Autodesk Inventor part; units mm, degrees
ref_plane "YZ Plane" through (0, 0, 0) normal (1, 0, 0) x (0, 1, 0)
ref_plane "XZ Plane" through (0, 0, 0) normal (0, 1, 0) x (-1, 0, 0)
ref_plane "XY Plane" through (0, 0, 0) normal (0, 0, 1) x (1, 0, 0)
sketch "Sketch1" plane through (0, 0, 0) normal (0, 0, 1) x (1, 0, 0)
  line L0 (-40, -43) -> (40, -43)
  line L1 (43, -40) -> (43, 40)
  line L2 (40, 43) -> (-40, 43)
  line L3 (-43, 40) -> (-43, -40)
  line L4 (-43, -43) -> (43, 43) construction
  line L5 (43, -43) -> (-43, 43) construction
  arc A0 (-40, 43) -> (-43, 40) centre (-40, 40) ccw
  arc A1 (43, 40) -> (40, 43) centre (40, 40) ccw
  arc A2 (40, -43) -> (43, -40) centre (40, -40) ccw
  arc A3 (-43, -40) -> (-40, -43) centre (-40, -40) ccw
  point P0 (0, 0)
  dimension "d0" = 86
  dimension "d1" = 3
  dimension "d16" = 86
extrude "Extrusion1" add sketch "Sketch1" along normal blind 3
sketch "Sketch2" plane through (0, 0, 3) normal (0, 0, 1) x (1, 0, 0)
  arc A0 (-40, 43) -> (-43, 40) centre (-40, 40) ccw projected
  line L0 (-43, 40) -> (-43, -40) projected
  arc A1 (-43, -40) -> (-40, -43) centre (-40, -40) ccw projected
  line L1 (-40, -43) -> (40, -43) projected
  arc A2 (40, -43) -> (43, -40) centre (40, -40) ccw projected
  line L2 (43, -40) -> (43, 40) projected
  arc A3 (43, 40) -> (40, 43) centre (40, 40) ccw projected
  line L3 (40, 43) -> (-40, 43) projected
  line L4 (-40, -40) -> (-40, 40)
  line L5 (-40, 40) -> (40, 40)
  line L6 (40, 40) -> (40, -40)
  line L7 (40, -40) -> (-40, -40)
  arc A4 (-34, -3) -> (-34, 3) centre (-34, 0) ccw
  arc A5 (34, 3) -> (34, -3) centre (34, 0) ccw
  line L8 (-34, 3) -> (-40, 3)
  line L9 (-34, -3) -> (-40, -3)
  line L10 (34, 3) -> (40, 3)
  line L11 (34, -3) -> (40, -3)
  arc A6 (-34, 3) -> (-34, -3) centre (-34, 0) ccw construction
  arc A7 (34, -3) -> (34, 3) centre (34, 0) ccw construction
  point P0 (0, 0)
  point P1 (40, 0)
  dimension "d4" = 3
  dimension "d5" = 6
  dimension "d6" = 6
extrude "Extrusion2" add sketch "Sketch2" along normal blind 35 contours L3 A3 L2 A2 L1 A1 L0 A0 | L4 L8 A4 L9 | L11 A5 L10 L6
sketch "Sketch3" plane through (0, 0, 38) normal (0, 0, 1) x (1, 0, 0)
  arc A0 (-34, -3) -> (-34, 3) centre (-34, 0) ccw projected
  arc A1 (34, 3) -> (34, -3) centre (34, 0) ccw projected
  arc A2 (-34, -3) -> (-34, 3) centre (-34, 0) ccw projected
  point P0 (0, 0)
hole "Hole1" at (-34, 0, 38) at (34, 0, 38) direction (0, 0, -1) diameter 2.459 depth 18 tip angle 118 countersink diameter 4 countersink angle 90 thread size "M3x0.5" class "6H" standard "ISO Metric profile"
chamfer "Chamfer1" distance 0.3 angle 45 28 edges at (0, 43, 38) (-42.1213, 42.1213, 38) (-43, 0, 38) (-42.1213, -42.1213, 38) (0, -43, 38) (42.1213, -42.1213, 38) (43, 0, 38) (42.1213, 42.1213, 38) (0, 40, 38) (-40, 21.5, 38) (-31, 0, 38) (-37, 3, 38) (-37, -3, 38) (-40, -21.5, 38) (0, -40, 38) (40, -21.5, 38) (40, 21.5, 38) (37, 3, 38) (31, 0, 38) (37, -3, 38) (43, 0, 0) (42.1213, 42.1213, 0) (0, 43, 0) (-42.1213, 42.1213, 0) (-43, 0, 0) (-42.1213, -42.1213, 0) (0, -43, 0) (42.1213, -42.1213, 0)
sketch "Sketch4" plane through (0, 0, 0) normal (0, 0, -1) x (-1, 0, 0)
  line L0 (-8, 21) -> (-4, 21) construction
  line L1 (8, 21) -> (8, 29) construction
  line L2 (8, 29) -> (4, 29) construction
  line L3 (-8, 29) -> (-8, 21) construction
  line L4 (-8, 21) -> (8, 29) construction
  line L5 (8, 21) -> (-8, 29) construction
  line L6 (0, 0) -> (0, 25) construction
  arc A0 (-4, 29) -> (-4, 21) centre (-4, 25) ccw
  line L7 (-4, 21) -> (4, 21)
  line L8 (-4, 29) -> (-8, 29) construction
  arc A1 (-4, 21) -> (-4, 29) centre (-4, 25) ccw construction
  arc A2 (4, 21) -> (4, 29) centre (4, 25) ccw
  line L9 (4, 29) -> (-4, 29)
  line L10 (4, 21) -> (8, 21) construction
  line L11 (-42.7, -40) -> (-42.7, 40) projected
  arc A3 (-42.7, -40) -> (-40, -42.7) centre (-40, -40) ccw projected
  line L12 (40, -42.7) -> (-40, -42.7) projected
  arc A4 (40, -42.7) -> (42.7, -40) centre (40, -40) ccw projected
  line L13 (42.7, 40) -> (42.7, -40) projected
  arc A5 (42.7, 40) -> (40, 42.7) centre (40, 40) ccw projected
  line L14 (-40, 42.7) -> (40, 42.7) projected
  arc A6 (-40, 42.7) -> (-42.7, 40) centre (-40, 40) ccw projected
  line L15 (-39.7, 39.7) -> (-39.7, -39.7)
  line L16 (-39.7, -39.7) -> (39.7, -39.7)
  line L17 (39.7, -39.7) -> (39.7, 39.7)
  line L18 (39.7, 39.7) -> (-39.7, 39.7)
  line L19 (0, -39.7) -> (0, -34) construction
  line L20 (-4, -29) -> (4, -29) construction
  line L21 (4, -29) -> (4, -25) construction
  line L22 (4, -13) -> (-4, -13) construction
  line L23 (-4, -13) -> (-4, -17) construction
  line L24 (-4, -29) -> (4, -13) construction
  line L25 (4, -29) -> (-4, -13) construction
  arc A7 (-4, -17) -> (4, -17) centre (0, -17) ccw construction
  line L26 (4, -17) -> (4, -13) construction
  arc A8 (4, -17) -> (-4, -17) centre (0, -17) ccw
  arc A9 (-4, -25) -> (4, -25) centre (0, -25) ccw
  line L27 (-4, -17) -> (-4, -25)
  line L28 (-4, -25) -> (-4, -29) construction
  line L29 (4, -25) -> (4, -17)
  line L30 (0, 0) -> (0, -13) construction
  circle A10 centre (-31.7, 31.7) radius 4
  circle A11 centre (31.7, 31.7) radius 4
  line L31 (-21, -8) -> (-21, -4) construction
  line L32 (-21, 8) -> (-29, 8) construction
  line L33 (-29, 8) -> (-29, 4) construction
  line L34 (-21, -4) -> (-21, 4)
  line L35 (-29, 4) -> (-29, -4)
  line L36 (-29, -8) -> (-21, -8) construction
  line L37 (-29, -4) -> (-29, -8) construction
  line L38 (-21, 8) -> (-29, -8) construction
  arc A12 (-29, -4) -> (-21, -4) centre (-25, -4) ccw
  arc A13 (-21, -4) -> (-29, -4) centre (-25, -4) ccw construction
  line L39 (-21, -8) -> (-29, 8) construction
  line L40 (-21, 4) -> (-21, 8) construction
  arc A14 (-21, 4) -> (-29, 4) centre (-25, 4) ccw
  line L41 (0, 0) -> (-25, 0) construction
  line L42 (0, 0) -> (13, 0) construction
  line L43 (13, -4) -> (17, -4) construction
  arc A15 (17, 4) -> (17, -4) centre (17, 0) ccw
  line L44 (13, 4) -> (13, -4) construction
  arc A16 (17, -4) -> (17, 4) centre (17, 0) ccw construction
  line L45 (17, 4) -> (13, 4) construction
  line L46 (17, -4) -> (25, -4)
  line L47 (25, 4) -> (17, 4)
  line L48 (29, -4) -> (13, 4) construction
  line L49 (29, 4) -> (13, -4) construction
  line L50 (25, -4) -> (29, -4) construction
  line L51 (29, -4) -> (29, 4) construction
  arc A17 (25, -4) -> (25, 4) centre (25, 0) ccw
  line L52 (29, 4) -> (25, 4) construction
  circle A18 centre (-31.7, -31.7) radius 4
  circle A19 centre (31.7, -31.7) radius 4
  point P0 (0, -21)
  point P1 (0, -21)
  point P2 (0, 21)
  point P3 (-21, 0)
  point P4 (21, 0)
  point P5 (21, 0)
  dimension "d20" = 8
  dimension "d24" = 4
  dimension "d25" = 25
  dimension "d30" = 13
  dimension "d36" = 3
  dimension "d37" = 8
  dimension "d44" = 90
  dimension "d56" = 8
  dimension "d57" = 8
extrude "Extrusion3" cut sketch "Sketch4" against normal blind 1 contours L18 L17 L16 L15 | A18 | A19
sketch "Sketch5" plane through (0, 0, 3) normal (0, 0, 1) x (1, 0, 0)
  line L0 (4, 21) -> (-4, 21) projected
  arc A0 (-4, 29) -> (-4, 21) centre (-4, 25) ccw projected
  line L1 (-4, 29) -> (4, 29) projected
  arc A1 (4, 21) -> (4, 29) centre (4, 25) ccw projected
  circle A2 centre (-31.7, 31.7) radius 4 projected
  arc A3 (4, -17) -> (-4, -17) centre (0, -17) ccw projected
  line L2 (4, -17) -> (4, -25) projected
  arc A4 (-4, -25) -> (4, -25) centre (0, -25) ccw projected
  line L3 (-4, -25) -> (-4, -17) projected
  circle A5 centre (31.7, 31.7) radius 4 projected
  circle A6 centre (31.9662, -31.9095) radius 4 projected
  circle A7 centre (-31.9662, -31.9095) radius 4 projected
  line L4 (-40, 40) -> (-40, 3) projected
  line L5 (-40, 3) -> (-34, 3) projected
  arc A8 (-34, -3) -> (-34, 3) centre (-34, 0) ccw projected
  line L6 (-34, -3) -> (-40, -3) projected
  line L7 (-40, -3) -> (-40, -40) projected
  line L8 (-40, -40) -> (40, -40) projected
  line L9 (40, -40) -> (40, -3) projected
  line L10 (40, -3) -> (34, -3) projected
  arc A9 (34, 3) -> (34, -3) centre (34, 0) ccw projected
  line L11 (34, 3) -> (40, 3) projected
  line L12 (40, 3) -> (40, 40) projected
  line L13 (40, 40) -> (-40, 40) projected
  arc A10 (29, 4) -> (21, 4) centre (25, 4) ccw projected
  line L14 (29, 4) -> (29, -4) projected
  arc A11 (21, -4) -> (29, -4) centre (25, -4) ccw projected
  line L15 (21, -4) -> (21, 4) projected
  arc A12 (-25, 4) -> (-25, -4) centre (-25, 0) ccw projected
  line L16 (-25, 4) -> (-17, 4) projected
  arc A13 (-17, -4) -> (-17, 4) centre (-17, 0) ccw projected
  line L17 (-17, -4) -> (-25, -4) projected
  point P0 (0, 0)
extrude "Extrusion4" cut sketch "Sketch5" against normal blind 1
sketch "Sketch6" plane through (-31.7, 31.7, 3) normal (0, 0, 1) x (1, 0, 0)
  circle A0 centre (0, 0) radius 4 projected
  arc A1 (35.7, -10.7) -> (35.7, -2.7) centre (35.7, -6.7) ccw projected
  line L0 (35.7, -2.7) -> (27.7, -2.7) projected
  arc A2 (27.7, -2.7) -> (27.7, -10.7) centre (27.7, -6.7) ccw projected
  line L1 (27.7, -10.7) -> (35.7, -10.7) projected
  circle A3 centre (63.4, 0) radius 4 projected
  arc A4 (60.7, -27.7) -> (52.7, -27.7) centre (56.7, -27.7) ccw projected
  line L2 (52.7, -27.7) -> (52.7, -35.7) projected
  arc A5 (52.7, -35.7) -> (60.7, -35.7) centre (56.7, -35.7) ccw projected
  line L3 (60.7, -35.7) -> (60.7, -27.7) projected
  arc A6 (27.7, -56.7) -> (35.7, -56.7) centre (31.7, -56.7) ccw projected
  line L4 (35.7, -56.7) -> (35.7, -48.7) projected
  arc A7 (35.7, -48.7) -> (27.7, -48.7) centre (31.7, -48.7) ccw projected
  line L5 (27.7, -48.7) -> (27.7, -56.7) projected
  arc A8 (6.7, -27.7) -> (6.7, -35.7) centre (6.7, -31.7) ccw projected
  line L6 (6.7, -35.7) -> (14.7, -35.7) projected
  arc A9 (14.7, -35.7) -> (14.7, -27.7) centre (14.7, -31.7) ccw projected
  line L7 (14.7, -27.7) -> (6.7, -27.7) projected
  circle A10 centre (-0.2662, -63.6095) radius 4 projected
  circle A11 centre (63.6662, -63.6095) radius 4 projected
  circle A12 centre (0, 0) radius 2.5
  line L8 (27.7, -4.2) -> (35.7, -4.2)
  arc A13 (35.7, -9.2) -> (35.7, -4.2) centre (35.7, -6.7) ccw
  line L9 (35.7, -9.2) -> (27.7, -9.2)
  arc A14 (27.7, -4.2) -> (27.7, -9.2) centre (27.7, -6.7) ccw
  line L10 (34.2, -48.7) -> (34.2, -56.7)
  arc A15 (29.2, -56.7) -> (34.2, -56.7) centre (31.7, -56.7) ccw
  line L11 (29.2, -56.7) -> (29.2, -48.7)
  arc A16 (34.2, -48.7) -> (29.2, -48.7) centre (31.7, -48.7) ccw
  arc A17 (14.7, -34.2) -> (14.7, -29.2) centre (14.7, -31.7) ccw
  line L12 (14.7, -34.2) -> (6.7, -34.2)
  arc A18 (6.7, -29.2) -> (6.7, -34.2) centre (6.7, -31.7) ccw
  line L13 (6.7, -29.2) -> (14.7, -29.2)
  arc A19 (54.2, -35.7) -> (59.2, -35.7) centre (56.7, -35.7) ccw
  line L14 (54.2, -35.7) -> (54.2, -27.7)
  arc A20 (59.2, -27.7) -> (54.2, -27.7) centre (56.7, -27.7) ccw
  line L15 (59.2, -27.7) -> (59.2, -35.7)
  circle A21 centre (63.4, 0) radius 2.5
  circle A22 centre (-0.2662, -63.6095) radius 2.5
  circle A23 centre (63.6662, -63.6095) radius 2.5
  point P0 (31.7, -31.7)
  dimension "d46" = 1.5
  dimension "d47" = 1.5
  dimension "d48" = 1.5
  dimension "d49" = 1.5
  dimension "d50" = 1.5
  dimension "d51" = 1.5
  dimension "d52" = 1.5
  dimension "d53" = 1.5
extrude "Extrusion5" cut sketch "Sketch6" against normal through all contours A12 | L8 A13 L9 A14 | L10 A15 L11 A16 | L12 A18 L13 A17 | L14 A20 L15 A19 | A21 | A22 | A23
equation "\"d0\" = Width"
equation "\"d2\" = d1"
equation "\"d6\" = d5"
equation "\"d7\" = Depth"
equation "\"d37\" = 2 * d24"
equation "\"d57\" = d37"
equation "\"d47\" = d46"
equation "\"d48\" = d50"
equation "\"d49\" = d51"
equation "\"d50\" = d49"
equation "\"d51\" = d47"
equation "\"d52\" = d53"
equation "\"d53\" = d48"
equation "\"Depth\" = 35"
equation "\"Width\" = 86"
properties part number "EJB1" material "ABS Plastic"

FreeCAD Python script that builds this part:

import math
import FreeCAD as App
import Part
import Sketcher

V = App.Vector


def edges_at(feature, points):
    """Names of the edges that pass closest to the given points."""
    edges = feature.Shape.Edges
    near = lambda p: min(range(len(edges)), key=lambda i: edges[i].distToShape(Part.Vertex(*p))[0])
    return sorted({f"Edge{near(p) + 1}" for p in points})


def add_polygon(sketch, points):
    """Adds a closed chain of lines whose ends are joined by coincident constraints."""
    first, n = sketch.GeometryCount, len(points)
    for a, b in zip(points, points[1:] + points[:1]):
        sketch.addGeometry(Part.LineSegment(App.Vector(*a, 0), App.Vector(*b, 0)), False)
    for i in range(n):
        sketch.addConstraint(Sketcher.Constraint("Coincident", first + i, 2, first + (i + 1) % n, 1))

doc = App.newDocument("Part")
body = doc.addObject("PartDesign::Body", "Body")

# Sketch on XY plane
sketch1 = doc.addObject("Sketcher::SketchObject", "Sketch")
body.addObject(sketch1)
sketch1.AttachmentSupport = (doc.XY_Plane, [""])
sketch1.MapMode = "FlatFace"
sketch1.addGeometry([
    Part.ArcOfCircle(Part.Circle(V(-40, -40, 0), V(0, 0, 1), 3), math.radians(180), math.radians(270)),  # 0
    Part.LineSegment(V(-40, -43, 0), V(40, -43, 0)),  # 1
    Part.ArcOfCircle(Part.Circle(V(40, -40, 0), V(0, 0, 1), 3), math.radians(-90), math.radians(0)),  # 2
    Part.LineSegment(V(43, -40, 0), V(43, 40, 0)),  # 3
    Part.ArcOfCircle(Part.Circle(V(40, 40, 0), V(0, 0, 1), 3), math.radians(0), math.radians(90)),  # 4
    Part.LineSegment(V(40, 43, 0), V(-40, 43, 0)),  # 5
    Part.ArcOfCircle(Part.Circle(V(-40, 40, 0), V(0, 0, 1), 3), math.radians(90), math.radians(180)),  # 6
    Part.LineSegment(V(-43, 40, 0), V(-43, -40, 0)),  # 7
], False)
sketch1.addConstraint([
    Sketcher.Constraint("Tangent", 0, 2, 1, 1),
    Sketcher.Constraint("Tangent", 1, 2, 2, 1),
    Sketcher.Constraint("Tangent", 2, 2, 3, 1),
    Sketcher.Constraint("Tangent", 3, 2, 4, 1),
    Sketcher.Constraint("Tangent", 4, 2, 5, 1),
    Sketcher.Constraint("Tangent", 5, 2, 6, 1),
    Sketcher.Constraint("Tangent", 6, 2, 7, 1),
    Sketcher.Constraint("Tangent", 7, 2, 0, 1),
    Sketcher.Constraint("Horizontal", 1),
    Sketcher.Constraint("Vertical", 3),
    Sketcher.Constraint("Horizontal", 5),
    Sketcher.Constraint("Vertical", 7),
    Sketcher.Constraint("Equal", 0, 2),
    Sketcher.Constraint("Equal", 2, 4),
    Sketcher.Constraint("Equal", 4, 6),
    Sketcher.Constraint("Symmetric", 0, 3, 4, 3, -1, 1),
    Sketcher.Constraint("Equal", 5, 3),
    Sketcher.Constraint("Radius", 0, 3.0),
    Sketcher.Constraint("DistanceX", 1, 1, 1, 2, 80.0),
])
pad1 = doc.addObject("PartDesign::Pad", "Pad")
body.addObject(pad1)
pad1.Profile = sketch1
pad1.Length = 3

# Sketch on XY plane
sketch2 = doc.addObject("Sketcher::SketchObject", "Sketch001")
body.addObject(sketch2)
sketch2.AttachmentSupport = (doc.XY_Plane, [""])
sketch2.MapMode = "FlatFace"
sketch2.AttachmentOffset = App.Placement(V(0, 0, 3), App.Rotation())
sketch2.addGeometry([
    Part.LineSegment(V(40, 43, 0), V(-40, 43, 0)),  # 0
    Part.ArcOfCircle(Part.Circle(V(-40, 40, 0), V(0, 0, 1), 3), math.radians(90), math.radians(180)),  # 1
    Part.LineSegment(V(-43, 40, 0), V(-43, -40, 0)),  # 2
    Part.ArcOfCircle(Part.Circle(V(-40, -40, 0), V(0, 0, 1), 3), math.radians(180), math.radians(270)),  # 3
    Part.LineSegment(V(-40, -43, 0), V(40, -43, 0)),  # 4
    Part.ArcOfCircle(Part.Circle(V(40, -40, 0), V(0, 0, 1), 3), math.radians(-90), math.radians(0)),  # 5
    Part.LineSegment(V(43, -40, 0), V(43, 40, 0)),  # 6
    Part.ArcOfCircle(Part.Circle(V(40, 40, 0), V(0, 0, 1), 3), math.radians(0), math.radians(90)),  # 7
    Part.LineSegment(V(40, -40, 0), V(-40, -40, 0)),  # 8
    Part.LineSegment(V(-40, -40, 0), V(-40, -3, 0)),  # 9
    Part.LineSegment(V(-40, -3, 0), V(-34, -3, 0)),  # 10
    Part.ArcOfCircle(Part.Circle(V(-34, 0, 0), V(0, 0, 1), 3), math.radians(-90), math.radians(90)),  # 11
    Part.LineSegment(V(-34, 3, 0), V(-40, 3, 0)),  # 12
    Part.LineSegment(V(-40, 3, 0), V(-40, 40, 0)),  # 13
    Part.LineSegment(V(-40, 40, 0), V(40, 40, 0)),  # 14
    Part.LineSegment(V(40, 40, 0), V(40, 3, 0)),  # 15
    Part.LineSegment(V(40, 3, 0), V(34, 3, 0)),  # 16
    Part.ArcOfCircle(Part.Circle(V(34, 0, 0), V(0, 0, 1), 3), math.radians(90), math.radians(270)),  # 17
    Part.LineSegment(V(34, -3, 0), V(40, -3, 0)),  # 18
    Part.LineSegment(V(40, -3, 0), V(40, -40, 0)),  # 19
], False)
sketch2.addConstraint([
    Sketcher.Constraint("Tangent", 0, 2, 1, 1),
    Sketcher.Constraint("Tangent", 1, 2, 2, 1),
    Sketcher.Constraint("Tangent", 2, 2, 3, 1),
    Sketcher.Constraint("Tangent", 3, 2, 4, 1),
    Sketcher.Constraint("Tangent", 4, 2, 5, 1),
    Sketcher.Constraint("Tangent", 5, 2, 6, 1),
    Sketcher.Constraint("Tangent", 6, 2, 7, 1),
    Sketcher.Constraint("Tangent", 7, 2, 0, 1),
    Sketcher.Constraint("Coincident", 8, 2, 9, 1),
    Sketcher.Constraint("Coincident", 9, 2, 10, 1),
    Sketcher.Constraint("Tangent", 10, 2, 11, 1),
    Sketcher.Constraint("Tangent", 11, 2, 12, 1),
    Sketcher.Constraint("Coincident", 12, 2, 13, 1),
    Sketcher.Constraint("Coincident", 13, 2, 14, 1),
    Sketcher.Constraint("Coincident", 14, 2, 15, 1),
    Sketcher.Constraint("Coincident", 15, 2, 16, 1),
    Sketcher.Constraint("Tangent", 16, 2, 17, 1),
    Sketcher.Constraint("Tangent", 17, 2, 18, 1),
    Sketcher.Constraint("Coincident", 18, 2, 19, 1),
    Sketcher.Constraint("Coincident", 19, 2, 8, 1),
    Sketcher.Constraint("Horizontal", 0),
    Sketcher.Constraint("Vertical", 2),
    Sketcher.Constraint("Horizontal", 4),
    Sketcher.Constraint("Vertical", 6),
    Sketcher.Constraint("Horizontal", 8),
    Sketcher.Constraint("Vertical", 9),
    Sketcher.Constraint("Horizontal", 10),
    Sketcher.Constraint("Horizontal", 12),
    Sketcher.Constraint("Vertical", 13),
    Sketcher.Constraint("Horizontal", 14),
    Sketcher.Constraint("Vertical", 15),
    Sketcher.Constraint("Horizontal", 16),
    Sketcher.Constraint("Horizontal", 18),
    Sketcher.Constraint("Vertical", 19),
    Sketcher.Constraint("Coincident", 8, 2, 3, 3),
    Sketcher.Constraint("Coincident", 13, 2, 1, 3),
    Sketcher.Constraint("Coincident", 14, 2, 7, 3),
    Sketcher.Constraint("Coincident", 19, 2, 5, 3),
    Sketcher.Constraint("Equal", 1, 3),
    Sketcher.Constraint("Equal", 7, 11),
    Sketcher.Constraint("Equal", 11, 17),
    Sketcher.Constraint("Symmetric", 1, 3, 5, 3, -1, 1),
    Sketcher.Constraint("Symmetric", 11, 3, 17, 3, -1, 1),
    Sketcher.Constraint("PointOnObject", 11, 3, -1),
    Sketcher.Constraint("Equal", 14, 2),
    Sketcher.Constraint("Radius", 1, 3.0),
    Sketcher.Constraint("DistanceX", 10, 1, 10, 2, 6.0),
    Sketcher.Constraint("DistanceX", 0, 2, 0, 1, 80.0),
])
pad2 = doc.addObject("PartDesign::Pad", "Pad001")
body.addObject(pad2)
pad2.Profile = sketch2
pad2.Length = 35

# Sketch on XY plane
sketch3 = doc.addObject("Sketcher::SketchObject", "Sketch002")
body.addObject(sketch3)
sketch3.AttachmentSupport = (doc.XY_Plane, [""])
sketch3.MapMode = "FlatFace"
sketch3.AttachmentOffset = App.Placement(V(0, 0, 38), App.Rotation())
sketch3.addGeometry([
    Part.Circle(V(-34, 0, 0), V(0, 0, 1), 1.2295),
    Part.Circle(V(34, 0, 0), V(0, 0, 1), 1.2295),
], False)
sketch3.addConstraint([
    Sketcher.Constraint("Equal", 0, 1),
    Sketcher.Constraint("Symmetric", 0, 3, 1, 3, -1, 1),
    Sketcher.Constraint("PointOnObject", 0, 3, -1),
    Sketcher.Constraint("Diameter", 0, 2.459),
    Sketcher.Constraint("DistanceX", 0, 3, -1, 1, 34.0),
])
doc.recompute()
hole = doc.addObject("PartDesign::Hole", "Hole")
body.addObject(hole)
hole.Profile = sketch3
hole.ThreadType = "None"
hole.Diameter = 2.459
hole.DepthType = "Dimension"
hole.Depth = 18
hole.DrillPoint = "Angled"
hole.DrillPointAngle = 118
hole.HoleCutType = "Countersink"
hole.HoleCutDiameter = 4
hole.HoleCutCountersinkAngle = 90
doc.recompute()

chamfer = doc.addObject("PartDesign::Chamfer", "Chamfer")
body.addObject(chamfer)
chamfer.Base = (hole, edges_at(hole, [
    (0, 43, 38),
    (-42.121, 42.121, 38),
    (-43, 0, 38),
    (-42.121, -42.121, 38),
    (0, -43, 38),
    (42.121, -42.121, 38),
    (43, 0, 38),
    (42.121, 42.121, 38),
    (0, 40, 38),
    (-40, 21.5, 38),
    (-31, 0, 38),
    (-37, 3, 38),
    (-37, -3, 38),
    (-40, -21.5, 38),
    (0, -40, 38),
    (40, -21.5, 38),
    (40, 21.5, 38),
    (37, 3, 38),
    (31, 0, 38),
    (37, -3, 38),
    (43, 0, 0),
    (42.121, 42.121, 0),
    (0, 43, 0),
    (-42.121, 42.121, 0),
    (-43, 0, 0),
    (-42.121, -42.121, 0),
    (0, -43, 0),
    (42.121, -42.121, 0),
]))
chamfer.Size = 0.3

# Sketch on XY plane
sketch4 = doc.addObject("Sketcher::SketchObject", "Sketch003")
body.addObject(sketch4)
sketch4.AttachmentSupport = (doc.XY_Plane, [""])
sketch4.MapMode = "FlatFace"
add_polygon(sketch4, [(-39.7, 39.7), (39.7, 39.7), (39.7, -39.7), (-39.7, -39.7)])  # lines 0-3
sketch4.addGeometry(Part.ArcOfCircle(Part.Circle(V(0, -17, 0), V(0, 0, 1), 4), math.radians(0), math.radians(180)), False)  # 4
sketch4.addGeometry(Part.LineSegment(V(-4, -17, 0), V(-4, -25, 0)), False)  # 5
sketch4.addGeometry(Part.ArcOfCircle(Part.Circle(V(0, -25, 0), V(0, 0, 1), 4), math.radians(180), math.radians(360)), False)  # 6
sketch4.addGeometry(Part.LineSegment(V(4, -25, 0), V(4, -17, 0)), False)  # 7
sketch4.addGeometry(Part.LineSegment(V(21, 4, 0), V(21, -4, 0)), False)  # 8
sketch4.addGeometry(Part.ArcOfCircle(Part.Circle(V(25, -4, 0), V(0, 0, 1), 4), math.radians(180), math.radians(360)), False)  # 9
sketch4.addGeometry(Part.LineSegment(V(29, -4, 0), V(29, 4, 0)), False)  # 10
sketch4.addGeometry(Part.ArcOfCircle(Part.Circle(V(25, 4, 0), V(0, 0, 1), 4), math.radians(0), math.radians(180)), False)  # 11
sketch4.addGeometry(Part.Circle(V(31.7, 31.7, 0), V(0, 0, 1), 4), False)  # 12
sketch4.addGeometry(Part.ArcOfCircle(Part.Circle(V(-17, 0, 0), V(0, 0, 1), 4), math.radians(-90), math.radians(90)), False)  # 13
sketch4.addGeometry(Part.LineSegment(V(-17, 4, 0), V(-25, 4, 0)), False)  # 14
sketch4.addGeometry(Part.ArcOfCircle(Part.Circle(V(-25, 0, 0), V(0, 0, 1), 4), math.radians(90), math.radians(270)), False)  # 15
sketch4.addGeometry(Part.LineSegment(V(-25, -4, 0), V(-17, -4, 0)), False)  # 16
sketch4.addGeometry(Part.ArcOfCircle(Part.Circle(V(4, 25, 0), V(0, 0, 1), 4), math.radians(-90), math.radians(90)), False)  # 17
sketch4.addGeometry(Part.LineSegment(V(4, 29, 0), V(-4, 29, 0)), False)  # 18
sketch4.addGeometry(Part.ArcOfCircle(Part.Circle(V(-4, 25, 0), V(0, 0, 1), 4), math.radians(90), math.radians(270)), False)  # 19
sketch4.addGeometry(Part.LineSegment(V(-4, 21, 0), V(4, 21, 0)), False)  # 20
sketch4.addGeometry(Part.Circle(V(-31.7, 31.7, 0), V(0, 0, 1), 4), False)  # 21
sketch4.addConstraint([
    Sketcher.Constraint("Tangent", 4, 2, 5, 1),
    Sketcher.Constraint("Tangent", 5, 2, 6, 1),
    Sketcher.Constraint("Tangent", 6, 2, 7, 1),
    Sketcher.Constraint("Tangent", 7, 2, 4, 1),
    Sketcher.Constraint("Tangent", 8, 2, 9, 1),
    Sketcher.Constraint("Tangent", 9, 2, 10, 1),
    Sketcher.Constraint("Tangent", 10, 2, 11, 1),
    Sketcher.Constraint("Tangent", 11, 2, 8, 1),
    Sketcher.Constraint("Tangent", 13, 2, 14, 1),
    Sketcher.Constraint("Tangent", 14, 2, 15, 1),
    Sketcher.Constraint("Tangent", 15, 2, 16, 1),
    Sketcher.Constraint("Tangent", 16, 2, 13, 1),
    Sketcher.Constraint("Tangent", 17, 2, 18, 1),
    Sketcher.Constraint("Tangent", 18, 2, 19, 1),
    Sketcher.Constraint("Tangent", 19, 2, 20, 1),
    Sketcher.Constraint("Tangent", 20, 2, 17, 1),
    Sketcher.Constraint("Horizontal", 0),
    Sketcher.Constraint("Vertical", 1),
    Sketcher.Constraint("Horizontal", 2),
    Sketcher.Constraint("Vertical", 3),
    Sketcher.Constraint("Vertical", 5),
    Sketcher.Constraint("Vertical", 7),
    Sketcher.Constraint("Vertical", 8),
    Sketcher.Constraint("Vertical", 10),
    Sketcher.Constraint("Horizontal", 14),
    Sketcher.Constraint("Horizontal", 16),
    Sketcher.Constraint("Horizontal", 18),
    Sketcher.Constraint("Horizontal", 20),
    Sketcher.Constraint("Equal", 6, 9),
    Sketcher.Constraint("Equal", 11, 12),
    Sketcher.Constraint("Equal", 12, 13),
    Sketcher.Constraint("Equal", 15, 17),
    Sketcher.Constraint("Equal", 19, 21),
    Sketcher.Constraint("Symmetric", 0, 2, 2, 2, -1, 1),
    Sketcher.Constraint("Symmetric", 12, 3, 21, 3, -2),
    Sketcher.Constraint("PointOnObject", 4, 3, -2),
    Sketcher.Constraint("PointOnObject", 13, 3, -1),
    Sketcher.Constraint("Horizontal", 11, 2, 13, 2),
    Sketcher.Constraint("Horizontal", 9, 2, 15, 2),
    Sketcher.Constraint("Vertical", 19, 3, 4, 2),
    Sketcher.Constraint("Vertical", 17, 3, 6, 2),
    Sketcher.Constraint("Equal", 16, 18),
    Sketcher.Constraint("Equal", 2, 1),
    Sketcher.Constraint("Equal", 20, 5),
    Sketcher.Constraint("Diameter", 12, 8.0),
    Sketcher.Constraint("DistanceY", 6, 3, -1, 1, 25.0),
    Sketcher.Constraint("DistanceX", -1, 1, 9, 3, 25.0),
    Sketcher.Constraint("DistanceX", 15, 3, -1, 1, 25.0),
    Sketcher.Constraint("DistanceY", -1, 1, 17, 3, 25.0),
    Sketcher.Constraint("DistanceX", 12, 3, 0, 2, 8.0),
    Sketcher.Constraint("DistanceY", 12, 3, 0, 2, 8.0),
    Sketcher.Constraint("DistanceX", 0, 1, 0, 2, 79.4),
])
pocket1 = doc.addObject("PartDesign::Pocket", "Pocket")
body.addObject(pocket1)
pocket1.Profile = sketch4
pocket1.Length = 1
pocket1.Reversed = True

# Sketch on XY plane
sketch5 = doc.addObject("Sketcher::SketchObject", "Sketch004")
body.addObject(sketch5)
sketch5.AttachmentSupport = (doc.XY_Plane, [""])
sketch5.MapMode = "FlatFace"
sketch5.AttachmentOffset = App.Placement(V(0, 0, 3), App.Rotation())
sketch5.addGeometry([
    Part.LineSegment(V(40, 40, 0), V(-40, 40, 0)),  # 0
    Part.LineSegment(V(-40, 40, 0), V(-40, 3, 0)),  # 1
    Part.LineSegment(V(-40, 3, 0), V(-34, 3, 0)),  # 2
    Part.ArcOfCircle(Part.Circle(V(-34, 0, 0), V(0, 0, 1), 3), math.radians(-90), math.radians(90)),  # 3
    Part.LineSegment(V(-34, -3, 0), V(-40, -3, 0)),  # 4
    Part.LineSegment(V(-40, -3, 0), V(-40, -40, 0)),  # 5
    Part.LineSegment(V(-40, -40, 0), V(40, -40, 0)),  # 6
    Part.LineSegment(V(40, -40, 0), V(40, -3, 0)),  # 7
    Part.LineSegment(V(40, -3, 0), V(34, -3, 0)),  # 8
    Part.ArcOfCircle(Part.Circle(V(34, 0, 0), V(0, 0, 1), 3), math.radians(90), math.radians(270)),  # 9
    Part.LineSegment(V(34, 3, 0), V(40, 3, 0)),  # 10
    Part.LineSegment(V(40, 3, 0), V(40, 40, 0)),  # 11
    Part.Circle(V(-31.9662, -31.9095, 0), V(0, 0, 1), 4),  # 12
    Part.ArcOfCircle(Part.Circle(V(0, -17, 0), V(0, 0, 1), 4), math.radians(0), math.radians(180)),  # 13
    Part.LineSegment(V(4, -17, 0), V(4, -25, 0)),  # 14
    Part.ArcOfCircle(Part.Circle(V(0, -25, 0), V(0, 0, 1), 4), math.radians(180), math.radians(360)),  # 15
    Part.LineSegment(V(-4, -25, 0), V(-4, -17, 0)),  # 16
    Part.Circle(V(31.9662, -31.9095, 0), V(0, 0, 1), 4),  # 17
    Part.ArcOfCircle(Part.Circle(V(-25, 0, 0), V(0, 0, 1), 4), math.radians(90), math.radians(270)),  # 18
    Part.LineSegment(V(-25, 4, 0), V(-17, 4, 0)),  # 19
    Part.ArcOfCircle(Part.Circle(V(-17, 0, 0), V(0, 0, 1), 4), math.radians(-90), math.radians(90)),  # 20
    Part.LineSegment(V(-17, -4, 0), V(-25, -4, 0)),  # 21
    Part.Circle(V(-31.7, 31.7, 0), V(0, 0, 1), 4),  # 22
    Part.ArcOfCircle(Part.Circle(V(25, 4, 0), V(0, 0, 1), 4), math.radians(0), math.radians(180)),  # 23
    Part.LineSegment(V(29, 4, 0), V(29, -4, 0)),  # 24
    Part.ArcOfCircle(Part.Circle(V(25, -4, 0), V(0, 0, 1), 4), math.radians(180), math.radians(360)),  # 25
    Part.LineSegment(V(21, -4, 0), V(21, 4, 0)),  # 26
    Part.ArcOfCircle(Part.Circle(V(4, 25, 0), V(0, 0, 1), 4), math.radians(-90), math.radians(90)),  # 27
    Part.LineSegment(V(4, 21, 0), V(-4, 21, 0)),  # 28
    Part.ArcOfCircle(Part.Circle(V(-4, 25, 0), V(0, 0, 1), 4), math.radians(90), math.radians(270)),  # 29
    Part.LineSegment(V(-4, 29, 0), V(4, 29, 0)),  # 30
    Part.Circle(V(31.7, 31.7, 0), V(0, 0, 1), 4),  # 31
], False)
sketch5.addConstraint([
    Sketcher.Constraint("Coincident", 0, 2, 1, 1),
    Sketcher.Constraint("Coincident", 1, 2, 2, 1),
    Sketcher.Constraint("Tangent", 2, 2, 3, 2),
    Sketcher.Constraint("Tangent", 3, 1, 4, 1),
    Sketcher.Constraint("Coincident", 4, 2, 5, 1),
    Sketcher.Constraint("Coincident", 5, 2, 6, 1),
    Sketcher.Constraint("Coincident", 6, 2, 7, 1),
    Sketcher.Constraint("Coincident", 7, 2, 8, 1),
    Sketcher.Constraint("Tangent", 8, 2, 9, 2),
    Sketcher.Constraint("Tangent", 9, 1, 10, 1),
    Sketcher.Constraint("Coincident", 10, 2, 11, 1),
    Sketcher.Constraint("Coincident", 11, 2, 0, 1),
    Sketcher.Constraint("Tangent", 13, 1, 14, 1),
    Sketcher.Constraint("Tangent", 14, 2, 15, 2),
    Sketcher.Constraint("Tangent", 15, 1, 16, 1),
    Sketcher.Constraint("Tangent", 16, 2, 13, 2),
    Sketcher.Constraint("Tangent", 18, 1, 19, 1),
    Sketcher.Constraint("Tangent", 19, 2, 20, 2),
    Sketcher.Constraint("Tangent", 20, 1, 21, 1),
    Sketcher.Constraint("Tangent", 21, 2, 18, 2),
    Sketcher.Constraint("Tangent", 23, 1, 24, 1),
    Sketcher.Constraint("Tangent", 24, 2, 25, 2),
    Sketcher.Constraint("Tangent", 25, 1, 26, 1),
    Sketcher.Constraint("Tangent", 26, 2, 23, 2),
    Sketcher.Constraint("Tangent", 27, 1, 28, 1),
    Sketcher.Constraint("Tangent", 28, 2, 29, 2),
    Sketcher.Constraint("Tangent", 29, 1, 30, 1),
    Sketcher.Constraint("Tangent", 30, 2, 27, 2),
    Sketcher.Constraint("Horizontal", 0),
    Sketcher.Constraint("Vertical", 1),
    Sketcher.Constraint("Horizontal", 2),
    Sketcher.Constraint("Horizontal", 4),
    Sketcher.Constraint("Vertical", 5),
    Sketcher.Constraint("Horizontal", 6),
    Sketcher.Constraint("Vertical", 7),
    Sketcher.Constraint("Horizontal", 8),
    Sketcher.Constraint("Horizontal", 10),
    Sketcher.Constraint("Vertical", 11),
    Sketcher.Constraint("Vertical", 14),
    Sketcher.Constraint("Vertical", 16),
    Sketcher.Constraint("Horizontal", 19),
    Sketcher.Constraint("Horizontal", 21),
    Sketcher.Constraint("Vertical", 24),
    Sketcher.Constraint("Vertical", 26),
    Sketcher.Constraint("Horizontal", 28),
    Sketcher.Constraint("Horizontal", 30),
    Sketcher.Constraint("Equal", 3, 9),
    Sketcher.Constraint("Equal", 12, 13),
    Sketcher.Constraint("Equal", 15, 17),
    Sketcher.Constraint("Equal", 17, 18),
    Sketcher.Constraint("Equal", 20, 22),
    Sketcher.Constraint("Equal", 22, 23),
    Sketcher.Constraint("Equal", 25, 27),
    Sketcher.Constraint("Equal", 29, 31),
    Sketcher.Constraint("Symmetric", 3, 3, 9, 3, -1, 1),
    Sketcher.Constraint("Symmetric", 0, 2, 6, 2, -1, 1),
    Sketcher.Constraint("Symmetric", 12, 3, 17, 3, -2),
    Sketcher.Constraint("Symmetric", 22, 3, 31, 3, -2),
    Sketcher.Constraint("Symmetric", 4, 2, 7, 2, -2),
    Sketcher.Constraint("PointOnObject", 13, 3, -2),
    Sketcher.Constraint("PointOnObject", 18, 3, -1),
    Sketcher.Constraint("Horizontal", 23, 3, 18, 1),
    Sketcher.Constraint("Horizontal", 25, 3, 20, 1),
    Sketcher.Constraint("Vertical", 7, 2, 10, 2),
    Sketcher.Constraint("Vertical", 27, 3, 13, 1),
    Sketcher.Constraint("Vertical", 29, 3, 15, 1),
    Sketcher.Constraint("Equal", 21, 28),
    Sketcher.Constraint("Equal", 30, 14),
    Sketcher.Constraint("Diameter", 12, 8.0),
    Sketcher.Constraint("Radius", 3, 3.0),
    Sketcher.Constraint("DistanceX", 0, 2, 0, 1, 80.0),
    Sketcher.Constraint("DistanceX", 2, 1, 2, 2, 6.0),
    Sketcher.Constraint("DistanceY", 1, 2, 1, 1, 37.0),
    Sketcher.Constraint("DistanceY", 13, 3, -1, 1, 17.0),
    Sketcher.Constraint("DistanceX", 18, 3, -1, 1, 25.0),
    Sketcher.Constraint("DistanceX", -1, 1, 23, 3, 25.0),
    Sketcher.Constraint("DistanceY", -1, 1, 27, 3, 25.0),
    Sketcher.Constraint("DistanceX", 22, 3, -1, 1, 31.7),
    Sketcher.Constraint("DistanceY", -1, 1, 22, 3, 31.7),
    Sketcher.Constraint("DistanceX", 12, 3, -1, 1, 31.9662),
    Sketcher.Constraint("DistanceY", 12, 3, -1, 1, 31.9095),
])
pocket2 = doc.addObject("PartDesign::Pocket", "Pocket001")
body.addObject(pocket2)
pocket2.Profile = sketch5
pocket2.Length = 1

# Sketch on XY plane
sketch6 = doc.addObject("Sketcher::SketchObject", "Sketch005")
body.addObject(sketch6)
sketch6.AttachmentSupport = (doc.XY_Plane, [""])
sketch6.MapMode = "FlatFace"
sketch6.AttachmentOffset = App.Placement(V(0, 0, 3), App.Rotation())
sketch6.addGeometry([
    Part.Circle(V(-31.7, 31.7, 0), V(0, 0, 1), 2.5),  # 0
    Part.LineSegment(V(4, 27.5, 0), V(-4, 27.5, 0)),  # 1
    Part.ArcOfCircle(Part.Circle(V(-4, 25, 0), V(0, 0, 1), 2.5), math.radians(90), math.radians(270)),  # 2
    Part.LineSegment(V(-4, 22.5, 0), V(4, 22.5, 0)),  # 3
    Part.ArcOfCircle(Part.Circle(V(4, 25, 0), V(0, 0, 1), 2.5), math.radians(-90), math.radians(90)),  # 4
    Part.LineSegment(V(2.5, -25, 0), V(2.5, -17, 0)),  # 5
    Part.ArcOfCircle(Part.Circle(V(0, -17, 0), V(0, 0, 1), 2.5), math.radians(0), math.radians(180)),  # 6
    Part.LineSegment(V(-2.5, -17, 0), V(-2.5, -25, 0)),  # 7
    Part.ArcOfCircle(Part.Circle(V(0, -25, 0), V(0, 0, 1), 2.5), math.radians(180), math.radians(360)),  # 8
    Part.LineSegment(V(-25, -2.5, 0), V(-17, -2.5, 0)),  # 9
    Part.ArcOfCircle(Part.Circle(V(-17, 0, 0), V(0, 0, 1), 2.5), math.radians(-90), math.radians(90)),  # 10
    Part.LineSegment(V(-17, 2.5, 0), V(-25, 2.5, 0)),  # 11
    Part.ArcOfCircle(Part.Circle(V(-25, 0, 0), V(0, 0, 1), 2.5), math.radians(90), math.radians(270)),  # 12
    Part.LineSegment(V(22.5, 4, 0), V(22.5, -4, 0)),  # 13
    Part.ArcOfCircle(Part.Circle(V(25, -4, 0), V(0, 0, 1), 2.5), math.radians(180), math.radians(360)),  # 14
    Part.LineSegment(V(27.5, -4, 0), V(27.5, 4, 0)),  # 15
    Part.ArcOfCircle(Part.Circle(V(25, 4, 0), V(0, 0, 1), 2.5), math.radians(0), math.radians(180)),  # 16
    Part.Circle(V(31.7, 31.7, 0), V(0, 0, 1), 2.5),  # 17
    Part.Circle(V(-31.9662, -31.9095, 0), V(0, 0, 1), 2.5),  # 18
    Part.Circle(V(31.9662, -31.9095, 0), V(0, 0, 1), 2.5),  # 19
], False)
sketch6.addConstraint([
    Sketcher.Constraint("Tangent", 1, 2, 2, 1),
    Sketcher.Constraint("Tangent", 2, 2, 3, 1),
    Sketcher.Constraint("Tangent", 3, 2, 4, 1),
    Sketcher.Constraint("Tangent", 4, 2, 1, 1),
    Sketcher.Constraint("Tangent", 5, 2, 6, 1),
    Sketcher.Constraint("Tangent", 6, 2, 7, 1),
    Sketcher.Constraint("Tangent", 7, 2, 8, 1),
    Sketcher.Constraint("Tangent", 8, 2, 5, 1),
    Sketcher.Constraint("Tangent", 9, 2, 10, 1),
    Sketcher.Constraint("Tangent", 10, 2, 11, 1),
    Sketcher.Constraint("Tangent", 11, 2, 12, 1),
    Sketcher.Constraint("Tangent", 12, 2, 9, 1),
    Sketcher.Constraint("Tangent", 13, 2, 14, 1),
    Sketcher.Constraint("Tangent", 14, 2, 15, 1),
    Sketcher.Constraint("Tangent", 15, 2, 16, 1),
    Sketcher.Constraint("Tangent", 16, 2, 13, 1),
    Sketcher.Constraint("Horizontal", 1),
    Sketcher.Constraint("Horizontal", 3),
    Sketcher.Constraint("Vertical", 5),
    Sketcher.Constraint("Vertical", 7),
    Sketcher.Constraint("Horizontal", 9),
    Sketcher.Constraint("Horizontal", 11),
    Sketcher.Constraint("Vertical", 13),
    Sketcher.Constraint("Vertical", 15),
    Sketcher.Constraint("Equal", 0, 2),
    Sketcher.Constraint("Equal", 4, 6),
    Sketcher.Constraint("Equal", 8, 10),
    Sketcher.Constraint("Equal", 12, 14),
    Sketcher.Constraint("Equal", 16, 17),
    Sketcher.Constraint("Equal", 17, 18),
    Sketcher.Constraint("Equal", 18, 19),
    Sketcher.Constraint("Symmetric", 0, 3, 17, 3, -2),
    Sketcher.Constraint("Symmetric", 18, 3, 19, 3, -2),
    Sketcher.Constraint("PointOnObject", 6, 3, -2),
    Sketcher.Constraint("PointOnObject", 10, 3, -1),
    Sketcher.Constraint("Equal", 3, 9),
    Sketcher.Constraint("Equal", 11, 5),
    Sketcher.Constraint("Equal", 7, 13),
    Sketcher.Constraint("Diameter", 0, 5.0),
    Sketcher.Constraint("DistanceX", 1, 2, 1, 1, 8.0),
    Sketcher.Constraint("DistanceX", 2, 3, -1, 1, 4.0),
    Sketcher.Constraint("DistanceY", -1, 1, 2, 3, 25.0),
    Sketcher.Constraint("DistanceY", 6, 3, -1, 1, 17.0),
    Sketcher.Constraint("DistanceX", 10, 3, -1, 1, 17.0),
    Sketcher.Constraint("DistanceX", -1, 1, 14, 3, 25.0),
    Sketcher.Constraint("DistanceY", 14, 3, -1, 1, 4.0),
    Sketcher.Constraint("DistanceX", 0, 3, -1, 1, 31.7),
    Sketcher.Constraint("DistanceY", -1, 1, 0, 3, 31.7),
    Sketcher.Constraint("DistanceX", 18, 3, -1, 1, 31.9662),
    Sketcher.Constraint("DistanceY", 18, 3, -1, 1, 31.9095),
])
pocket3 = doc.addObject("PartDesign::Pocket", "Pocket002")
body.addObject(pocket3)
pocket3.Profile = sketch6
pocket3.Type = "ThroughAll"

doc.recompute()
